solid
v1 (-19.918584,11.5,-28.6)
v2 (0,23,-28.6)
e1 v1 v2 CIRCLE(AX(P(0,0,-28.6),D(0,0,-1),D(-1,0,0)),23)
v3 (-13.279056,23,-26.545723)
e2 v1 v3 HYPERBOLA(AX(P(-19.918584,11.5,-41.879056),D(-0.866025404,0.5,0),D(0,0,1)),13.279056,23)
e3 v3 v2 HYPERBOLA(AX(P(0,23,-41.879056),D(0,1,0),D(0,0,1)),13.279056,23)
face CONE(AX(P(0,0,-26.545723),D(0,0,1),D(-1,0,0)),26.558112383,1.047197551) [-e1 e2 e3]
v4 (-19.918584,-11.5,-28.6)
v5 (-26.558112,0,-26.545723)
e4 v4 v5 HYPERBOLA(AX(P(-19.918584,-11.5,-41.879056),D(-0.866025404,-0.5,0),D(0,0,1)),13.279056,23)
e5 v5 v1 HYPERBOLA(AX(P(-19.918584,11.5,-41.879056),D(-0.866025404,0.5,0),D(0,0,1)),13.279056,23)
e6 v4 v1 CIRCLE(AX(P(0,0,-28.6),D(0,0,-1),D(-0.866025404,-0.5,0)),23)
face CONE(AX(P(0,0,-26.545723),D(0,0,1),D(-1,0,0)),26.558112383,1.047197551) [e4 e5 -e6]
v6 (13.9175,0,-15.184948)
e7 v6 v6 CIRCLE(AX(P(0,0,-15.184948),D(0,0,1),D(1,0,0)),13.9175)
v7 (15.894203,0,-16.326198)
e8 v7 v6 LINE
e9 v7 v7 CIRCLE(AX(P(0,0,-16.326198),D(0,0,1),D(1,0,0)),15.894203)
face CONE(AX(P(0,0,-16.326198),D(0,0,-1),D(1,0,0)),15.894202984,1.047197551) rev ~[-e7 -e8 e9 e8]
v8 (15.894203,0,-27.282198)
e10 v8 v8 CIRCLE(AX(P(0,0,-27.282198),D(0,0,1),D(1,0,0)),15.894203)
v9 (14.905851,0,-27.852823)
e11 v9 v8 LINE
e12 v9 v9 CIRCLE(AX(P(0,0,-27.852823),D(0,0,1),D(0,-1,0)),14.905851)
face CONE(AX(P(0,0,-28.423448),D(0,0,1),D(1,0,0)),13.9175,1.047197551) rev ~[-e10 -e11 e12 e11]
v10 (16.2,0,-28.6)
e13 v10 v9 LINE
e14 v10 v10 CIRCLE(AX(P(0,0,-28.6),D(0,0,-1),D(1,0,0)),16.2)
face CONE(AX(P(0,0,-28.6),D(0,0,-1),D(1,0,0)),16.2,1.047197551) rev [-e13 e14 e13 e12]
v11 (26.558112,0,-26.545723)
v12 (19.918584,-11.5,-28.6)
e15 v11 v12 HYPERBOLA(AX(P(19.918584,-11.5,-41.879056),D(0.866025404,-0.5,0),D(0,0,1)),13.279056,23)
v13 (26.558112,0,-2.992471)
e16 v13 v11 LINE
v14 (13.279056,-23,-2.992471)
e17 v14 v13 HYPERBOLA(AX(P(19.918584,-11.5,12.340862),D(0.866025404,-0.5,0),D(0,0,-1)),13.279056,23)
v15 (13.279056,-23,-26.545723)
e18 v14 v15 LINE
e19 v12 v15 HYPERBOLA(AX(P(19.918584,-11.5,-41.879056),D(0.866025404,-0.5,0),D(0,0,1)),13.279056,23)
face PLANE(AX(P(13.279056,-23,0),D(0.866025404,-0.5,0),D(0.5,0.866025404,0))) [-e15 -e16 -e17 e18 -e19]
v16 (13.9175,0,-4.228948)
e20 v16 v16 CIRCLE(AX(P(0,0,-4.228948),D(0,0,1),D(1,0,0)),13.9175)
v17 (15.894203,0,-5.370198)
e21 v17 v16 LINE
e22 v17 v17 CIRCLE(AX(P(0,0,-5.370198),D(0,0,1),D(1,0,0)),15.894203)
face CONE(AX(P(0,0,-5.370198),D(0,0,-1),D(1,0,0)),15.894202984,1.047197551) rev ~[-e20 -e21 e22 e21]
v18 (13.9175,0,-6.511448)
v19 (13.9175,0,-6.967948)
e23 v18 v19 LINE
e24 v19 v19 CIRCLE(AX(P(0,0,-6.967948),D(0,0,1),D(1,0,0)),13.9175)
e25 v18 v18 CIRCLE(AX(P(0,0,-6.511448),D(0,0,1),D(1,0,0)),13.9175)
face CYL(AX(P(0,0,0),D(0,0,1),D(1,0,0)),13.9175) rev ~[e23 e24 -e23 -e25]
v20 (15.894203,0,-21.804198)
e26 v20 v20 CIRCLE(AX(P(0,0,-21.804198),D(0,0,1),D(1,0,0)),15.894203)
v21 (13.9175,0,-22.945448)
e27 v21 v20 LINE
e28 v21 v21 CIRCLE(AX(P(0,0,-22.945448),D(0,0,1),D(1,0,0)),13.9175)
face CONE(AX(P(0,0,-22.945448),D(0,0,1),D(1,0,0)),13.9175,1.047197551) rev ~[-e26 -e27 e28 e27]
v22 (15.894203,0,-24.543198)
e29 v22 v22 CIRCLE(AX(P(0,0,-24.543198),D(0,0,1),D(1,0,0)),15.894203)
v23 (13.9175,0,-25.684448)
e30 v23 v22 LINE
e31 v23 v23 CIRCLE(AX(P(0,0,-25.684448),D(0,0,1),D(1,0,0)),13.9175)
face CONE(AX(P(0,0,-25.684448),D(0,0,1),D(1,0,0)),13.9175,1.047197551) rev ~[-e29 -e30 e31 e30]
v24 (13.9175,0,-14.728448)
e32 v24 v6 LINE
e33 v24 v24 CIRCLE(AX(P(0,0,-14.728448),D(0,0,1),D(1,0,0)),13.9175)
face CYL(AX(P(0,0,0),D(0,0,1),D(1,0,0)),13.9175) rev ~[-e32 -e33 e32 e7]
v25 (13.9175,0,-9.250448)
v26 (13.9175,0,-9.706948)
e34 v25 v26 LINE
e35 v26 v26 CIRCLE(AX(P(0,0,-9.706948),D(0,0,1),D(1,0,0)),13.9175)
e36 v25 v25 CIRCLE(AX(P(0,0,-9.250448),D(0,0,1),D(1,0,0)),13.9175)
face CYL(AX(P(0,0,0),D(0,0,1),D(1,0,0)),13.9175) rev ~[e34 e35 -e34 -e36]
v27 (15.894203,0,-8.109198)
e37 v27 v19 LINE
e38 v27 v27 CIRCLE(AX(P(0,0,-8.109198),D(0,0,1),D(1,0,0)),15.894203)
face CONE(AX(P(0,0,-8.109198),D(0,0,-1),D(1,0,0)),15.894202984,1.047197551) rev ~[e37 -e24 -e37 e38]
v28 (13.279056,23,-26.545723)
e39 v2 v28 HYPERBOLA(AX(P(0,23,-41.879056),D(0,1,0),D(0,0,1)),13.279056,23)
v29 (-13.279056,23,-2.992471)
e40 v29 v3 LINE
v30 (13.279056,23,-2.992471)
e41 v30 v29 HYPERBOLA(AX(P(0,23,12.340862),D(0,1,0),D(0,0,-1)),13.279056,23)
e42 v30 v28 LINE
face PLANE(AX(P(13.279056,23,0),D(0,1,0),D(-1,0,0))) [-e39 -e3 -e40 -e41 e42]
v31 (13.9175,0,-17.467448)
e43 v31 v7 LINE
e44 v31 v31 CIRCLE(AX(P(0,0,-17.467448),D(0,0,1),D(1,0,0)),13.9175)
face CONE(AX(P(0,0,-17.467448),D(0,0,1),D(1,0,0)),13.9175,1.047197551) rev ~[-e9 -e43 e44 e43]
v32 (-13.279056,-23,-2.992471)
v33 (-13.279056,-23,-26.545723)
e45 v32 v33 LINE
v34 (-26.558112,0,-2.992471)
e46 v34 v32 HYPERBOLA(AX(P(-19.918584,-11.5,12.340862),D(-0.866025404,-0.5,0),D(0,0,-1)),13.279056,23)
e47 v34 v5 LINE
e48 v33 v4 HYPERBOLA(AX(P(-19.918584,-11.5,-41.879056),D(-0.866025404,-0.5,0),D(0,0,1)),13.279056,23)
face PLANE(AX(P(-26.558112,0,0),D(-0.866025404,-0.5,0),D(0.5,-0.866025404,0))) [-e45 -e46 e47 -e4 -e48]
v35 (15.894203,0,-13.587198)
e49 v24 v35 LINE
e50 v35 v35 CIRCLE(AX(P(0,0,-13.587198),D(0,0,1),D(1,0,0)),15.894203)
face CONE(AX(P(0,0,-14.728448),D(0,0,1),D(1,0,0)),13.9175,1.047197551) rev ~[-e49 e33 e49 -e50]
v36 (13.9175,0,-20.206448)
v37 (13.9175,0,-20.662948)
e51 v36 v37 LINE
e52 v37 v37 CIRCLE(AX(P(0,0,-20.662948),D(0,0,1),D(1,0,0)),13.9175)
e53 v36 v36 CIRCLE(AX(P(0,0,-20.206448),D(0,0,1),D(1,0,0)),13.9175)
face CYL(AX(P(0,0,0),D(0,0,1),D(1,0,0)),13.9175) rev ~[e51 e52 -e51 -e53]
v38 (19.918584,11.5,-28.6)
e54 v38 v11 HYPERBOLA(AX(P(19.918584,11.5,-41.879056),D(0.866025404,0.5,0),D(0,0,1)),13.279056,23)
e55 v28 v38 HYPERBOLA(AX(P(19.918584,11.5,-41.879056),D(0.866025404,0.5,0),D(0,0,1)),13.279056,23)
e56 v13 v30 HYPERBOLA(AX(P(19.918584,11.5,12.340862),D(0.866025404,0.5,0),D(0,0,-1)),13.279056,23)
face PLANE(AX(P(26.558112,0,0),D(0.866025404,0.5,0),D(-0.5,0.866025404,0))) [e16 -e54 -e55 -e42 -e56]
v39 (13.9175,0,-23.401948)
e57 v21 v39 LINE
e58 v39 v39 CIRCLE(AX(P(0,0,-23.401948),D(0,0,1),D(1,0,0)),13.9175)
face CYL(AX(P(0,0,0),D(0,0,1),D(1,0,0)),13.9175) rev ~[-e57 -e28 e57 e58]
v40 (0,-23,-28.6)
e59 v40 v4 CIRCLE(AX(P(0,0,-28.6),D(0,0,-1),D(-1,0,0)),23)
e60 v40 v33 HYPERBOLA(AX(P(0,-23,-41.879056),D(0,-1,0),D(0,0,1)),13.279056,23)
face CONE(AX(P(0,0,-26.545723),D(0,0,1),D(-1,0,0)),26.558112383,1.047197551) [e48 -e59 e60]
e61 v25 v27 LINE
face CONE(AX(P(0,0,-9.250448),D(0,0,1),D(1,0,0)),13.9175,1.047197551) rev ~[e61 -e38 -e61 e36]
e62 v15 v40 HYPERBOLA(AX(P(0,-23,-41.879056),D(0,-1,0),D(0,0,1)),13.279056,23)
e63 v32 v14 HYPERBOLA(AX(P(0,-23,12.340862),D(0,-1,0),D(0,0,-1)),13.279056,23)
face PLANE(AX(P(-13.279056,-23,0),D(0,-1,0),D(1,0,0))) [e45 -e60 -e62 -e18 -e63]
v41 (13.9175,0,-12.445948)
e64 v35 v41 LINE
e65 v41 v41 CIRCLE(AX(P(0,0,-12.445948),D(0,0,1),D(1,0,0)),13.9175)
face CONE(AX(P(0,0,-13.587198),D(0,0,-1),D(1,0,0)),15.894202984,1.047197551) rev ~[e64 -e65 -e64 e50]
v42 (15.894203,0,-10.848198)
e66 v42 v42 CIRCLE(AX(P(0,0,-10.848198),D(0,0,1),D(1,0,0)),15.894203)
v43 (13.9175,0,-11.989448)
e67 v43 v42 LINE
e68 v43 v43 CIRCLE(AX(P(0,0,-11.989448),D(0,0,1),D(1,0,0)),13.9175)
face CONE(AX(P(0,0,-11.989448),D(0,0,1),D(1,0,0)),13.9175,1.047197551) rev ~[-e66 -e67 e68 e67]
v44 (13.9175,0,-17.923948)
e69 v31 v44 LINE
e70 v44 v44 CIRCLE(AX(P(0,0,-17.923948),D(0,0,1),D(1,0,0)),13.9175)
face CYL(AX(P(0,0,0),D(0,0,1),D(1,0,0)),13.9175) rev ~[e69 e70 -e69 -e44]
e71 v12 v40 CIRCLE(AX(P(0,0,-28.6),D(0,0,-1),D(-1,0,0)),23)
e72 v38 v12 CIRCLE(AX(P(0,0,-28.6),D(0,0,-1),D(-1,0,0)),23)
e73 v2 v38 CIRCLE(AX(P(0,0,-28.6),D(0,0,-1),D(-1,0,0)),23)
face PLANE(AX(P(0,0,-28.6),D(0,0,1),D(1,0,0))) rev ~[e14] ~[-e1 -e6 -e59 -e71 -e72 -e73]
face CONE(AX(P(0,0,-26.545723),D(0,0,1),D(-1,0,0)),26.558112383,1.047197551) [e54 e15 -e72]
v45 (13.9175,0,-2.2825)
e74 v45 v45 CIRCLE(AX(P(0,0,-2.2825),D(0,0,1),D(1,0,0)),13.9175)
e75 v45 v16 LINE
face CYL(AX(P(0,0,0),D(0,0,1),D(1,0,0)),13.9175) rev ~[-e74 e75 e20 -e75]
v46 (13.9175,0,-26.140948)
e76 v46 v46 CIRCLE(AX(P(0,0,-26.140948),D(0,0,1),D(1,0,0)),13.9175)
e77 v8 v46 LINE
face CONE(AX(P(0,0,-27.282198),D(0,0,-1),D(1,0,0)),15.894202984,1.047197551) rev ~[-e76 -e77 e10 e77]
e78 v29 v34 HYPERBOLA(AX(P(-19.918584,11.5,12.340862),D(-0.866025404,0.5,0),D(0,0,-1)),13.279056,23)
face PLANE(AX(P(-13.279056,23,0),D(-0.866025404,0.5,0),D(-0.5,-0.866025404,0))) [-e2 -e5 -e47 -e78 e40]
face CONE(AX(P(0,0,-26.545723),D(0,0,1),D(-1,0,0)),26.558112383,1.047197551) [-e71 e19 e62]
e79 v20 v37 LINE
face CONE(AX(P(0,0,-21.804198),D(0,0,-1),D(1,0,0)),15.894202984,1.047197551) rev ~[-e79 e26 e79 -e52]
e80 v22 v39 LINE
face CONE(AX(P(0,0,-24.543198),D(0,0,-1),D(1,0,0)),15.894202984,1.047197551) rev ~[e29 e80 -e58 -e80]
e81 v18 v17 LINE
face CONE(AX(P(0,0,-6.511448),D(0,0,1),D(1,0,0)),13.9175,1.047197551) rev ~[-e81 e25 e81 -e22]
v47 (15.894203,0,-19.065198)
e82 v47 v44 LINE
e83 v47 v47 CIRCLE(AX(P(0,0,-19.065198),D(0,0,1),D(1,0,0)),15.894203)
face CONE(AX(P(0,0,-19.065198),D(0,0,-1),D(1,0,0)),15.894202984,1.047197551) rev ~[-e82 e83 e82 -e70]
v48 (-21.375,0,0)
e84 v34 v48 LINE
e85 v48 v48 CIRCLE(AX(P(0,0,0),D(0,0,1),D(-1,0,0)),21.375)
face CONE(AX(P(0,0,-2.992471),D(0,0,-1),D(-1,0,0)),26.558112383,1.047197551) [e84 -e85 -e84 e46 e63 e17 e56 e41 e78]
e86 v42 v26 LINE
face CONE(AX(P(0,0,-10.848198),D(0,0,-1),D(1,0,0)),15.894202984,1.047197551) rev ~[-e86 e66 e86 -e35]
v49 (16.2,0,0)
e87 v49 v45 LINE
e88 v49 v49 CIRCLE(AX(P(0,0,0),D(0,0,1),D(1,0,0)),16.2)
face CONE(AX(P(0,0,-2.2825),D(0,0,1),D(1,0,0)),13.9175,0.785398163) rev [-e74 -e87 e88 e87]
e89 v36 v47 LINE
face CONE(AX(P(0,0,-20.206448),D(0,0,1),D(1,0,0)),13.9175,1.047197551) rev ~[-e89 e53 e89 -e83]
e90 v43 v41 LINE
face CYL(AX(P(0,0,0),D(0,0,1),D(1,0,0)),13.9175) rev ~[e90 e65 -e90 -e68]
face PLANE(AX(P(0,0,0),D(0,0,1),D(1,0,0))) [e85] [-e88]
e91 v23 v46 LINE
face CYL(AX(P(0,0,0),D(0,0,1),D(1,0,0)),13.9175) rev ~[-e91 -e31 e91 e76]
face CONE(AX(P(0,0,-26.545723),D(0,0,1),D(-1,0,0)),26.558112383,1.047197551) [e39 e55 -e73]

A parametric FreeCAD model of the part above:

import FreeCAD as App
import Part
import Sketcher

V = App.Vector
Q = App.Units.Quantity


def edges_at(feature, points):
    """Names of the edges that pass closest to the given points."""
    edges = feature.Shape.Edges
    near = lambda p: min(range(len(edges)), key=lambda i: edges[i].distToShape(Part.Vertex(*p))[0])
    return sorted({f"Edge{near(p) + 1}" for p in points})


def add_polygon(sketch, points):
    """Adds a closed chain of lines whose ends are joined by coincident constraints."""
    first, n = sketch.GeometryCount, len(points)
    for a, b in zip(points, points[1:] + points[:1]):
        sketch.addGeometry(Part.LineSegment(App.Vector(*a, 0), App.Vector(*b, 0)), False)
    for i in range(n):
        sketch.addConstraint(Sketcher.Constraint("Coincident", first + i, 2, first + (i + 1) % n, 1))

doc = App.newDocument("Part")
params = doc.addObject("Spreadsheet::Sheet", "Params")
for row, (alias, value) in enumerate([
    ("pad1_length", "28.6 mm"),
    ("groove_angle", "360 deg"),
    ("groove2_angle", "360 deg"),
    ("groove3_angle", "360 deg"),
    ("chamfer_size", "2.2825 mm"),
    ("groove4_angle", "360 deg"),
    ("linearpattern_pitch", "2.739 mm"),
], start=1):
    params.set(f"A{row}", alias)
    params.set(f"B{row}", "=" + value)
    params.setAlias(f"B{row}", alias)

body = doc.addObject("PartDesign::Body", "Body")

sketch1 = doc.addObject("Sketcher::SketchObject", "Sketch")
body.addObject(sketch1)
sketch1.AttachmentSupport = (doc.XY_Plane, [""])
sketch1.MapMode = "FlatFace"
add_polygon(sketch1, [(13, -23), (27, 0), (13, 23), (-13, 23), (-27, 0), (-13, -23)])
sketch1.addGeometry(Part.Circle(V(0, 0, 0), V(0, 0, 1), 14), False)
sketch1.addConstraint([
    Sketcher.Constraint("Horizontal", 2),
    Sketcher.Constraint("Horizontal", 5),
    Sketcher.Constraint("Coincident", 6, 3, -1, 1),
    Sketcher.Constraint("Symmetric", 0, 2, 3, 2, -1, 1),
    Sketcher.Constraint("Symmetric", 1, 2, 4, 2, -1, 1),
    Sketcher.Constraint("PointOnObject", 0, 2, -1),
    Sketcher.Constraint("Parallel", 0, 3),
    Sketcher.Constraint("Vertical", 2, 2, 4, 2),
    Sketcher.Constraint("Angle", 0, Q("60 deg")),
    Sketcher.Constraint("Diameter", 6, 27.835),
    Sketcher.Constraint("DistanceY", -1, 1, 1, 2, 23.0),
    Sketcher.Constraint("DistanceX", 2, 2, 2, 1, 26.558112),
])
pad1 = doc.addObject("PartDesign::Pad", "Pad")
body.addObject(pad1)
pad1.Profile = sketch1
pad1.setExpression("Length", "Params.pad1_length")
pad1.Reversed = True

sketch2 = doc.addObject("Sketcher::SketchObject", "Sketch001")
body.addObject(sketch2)
sketch2.AttachmentSupport = (doc.XZ_Plane, [""])
sketch2.MapMode = "FlatFace"
add_polygon(sketch2, [(-26.6, -26.5), (-23, -28.6), (-26.6, -28.6)])
sketch2.addConstraint([
    Sketcher.Constraint("Horizontal", 1),
    Sketcher.Constraint("Vertical", 2),
    Sketcher.Constraint("Angle", 0, Q("-30 deg")),
    Sketcher.Constraint("DistanceX", 0, 2, -1, 1, 23.0),
    Sketcher.Constraint("DistanceY", 0, 2, -1, 1, 28.6),
    Sketcher.Constraint("DistanceX", 1, 2, 1, 1, 3.558112),
])
groove = doc.addObject("PartDesign::Groove", "Groove")
body.addObject(groove)
groove.Profile = sketch2
groove.ReferenceAxis = (sketch2, ["V_Axis"])
groove.setExpression("Angle", "Params.groove_angle")

sketch3 = doc.addObject("Sketcher::SketchObject", "Sketch002")
body.addObject(sketch3)
sketch3.AttachmentSupport = (doc.XZ_Plane, [""])
sketch3.MapMode = "FlatFace"
add_polygon(sketch3, [(16.2, -28.6), (13.9, -28.6), (13.9, -27.3)])
sketch3.addConstraint([
    Sketcher.Constraint("Horizontal", 0),
    Sketcher.Constraint("Vertical", 1),
    Sketcher.Constraint("Angle", 2, Q("-30 deg")),
    Sketcher.Constraint("DistanceY", 0, 2, -1, 1, 28.6),
    Sketcher.Constraint("DistanceX", -1, 1, 2, 2, 16.2),
    Sketcher.Constraint("DistanceX", 0, 2, 0, 1, 2.2825),
])
groove2 = doc.addObject("PartDesign::Groove", "Groove001")
body.addObject(groove2)
groove2.Profile = sketch3
groove2.ReferenceAxis = (sketch3, ["V_Axis"])
groove2.setExpression("Angle", "Params.groove2_angle")

sketch4 = doc.addObject("Sketcher::SketchObject", "Sketch003")
body.addObject(sketch4)
sketch4.AttachmentSupport = (doc.XZ_Plane, [""])
sketch4.MapMode = "FlatFace"
add_polygon(sketch4, [(21.4, 0), (26.6, 0), (26.6, -3)])
sketch4.addConstraint([
    Sketcher.Constraint("Horizontal", 0),
    Sketcher.Constraint("Vertical", 1),
    Sketcher.Constraint("PointOnObject", 0, 2, -1),
    Sketcher.Constraint("Angle", 2, Q("150 deg")),
    Sketcher.Constraint("DistanceX", -1, 1, 2, 2, 21.375),
    Sketcher.Constraint("DistanceY", 1, 2, 1, 1, 2.992471),
])
groove3 = doc.addObject("PartDesign::Groove", "Groove002")
body.addObject(groove3)
groove3.Profile = sketch4
groove3.ReferenceAxis = (sketch4, ["V_Axis"])
groove3.setExpression("Angle", "Params.groove3_angle")
doc.recompute()

chamfer = doc.addObject("PartDesign::Chamfer", "Chamfer")
body.addObject(chamfer)
chamfer.Base = (groove3, edges_at(groove3, [(-13.918, 0, 0)]))
chamfer.setExpression("Size", "Params.chamfer_size")

sketch5 = doc.addObject("Sketcher::SketchObject", "Sketch004")
body.addObject(sketch5)
sketch5.AttachmentSupport = (doc.XZ_Plane, [""])
sketch5.MapMode = "FlatFace"
add_polygon(sketch5, [(13.9, -28.4), (11.6, -28.4), (11.6, -26.1), (13.9, -26.1), (15.9, -27.3)])
sketch5.addConstraint([
    Sketcher.Constraint("Horizontal", 0),
    Sketcher.Constraint("Vertical", 1),
    Sketcher.Constraint("Horizontal", 2),
    Sketcher.Constraint("Vertical", 2, 2, 4, 2),
    Sketcher.Constraint("Equal", 2, 1),
    Sketcher.Constraint("Equal", 3, 4),
    Sketcher.Constraint("Angle", 3, Q("-30 deg")),
    Sketcher.Constraint("DistanceX", 0, 2, 0, 1, 2.2825),
    Sketcher.Constraint("DistanceX", -1, 1, 0, 2, 11.635),
    Sketcher.Constraint("DistanceY", 3, 2, -1, 1, 27.282198),
])
groove4 = doc.addObject("PartDesign::Groove", "Groove003")
body.addObject(groove4)
groove4.Profile = sketch5
groove4.ReferenceAxis = (sketch5, ["V_Axis"])
groove4.setExpression("Angle", "Params.groove4_angle")
doc.recompute()

linearpattern = doc.addObject("PartDesign::LinearPattern", "LinearPattern")
body.addObject(linearpattern)
linearpattern.Originals = [groove4]
linearpattern.Direction = (doc.Z_Axis, [""])
linearpattern.Mode = "offset"
linearpattern.setExpression("Offset", "Params.linearpattern_pitch")
linearpattern.Occurrences = 9
body.Tip = linearpattern

doc.recompute()
